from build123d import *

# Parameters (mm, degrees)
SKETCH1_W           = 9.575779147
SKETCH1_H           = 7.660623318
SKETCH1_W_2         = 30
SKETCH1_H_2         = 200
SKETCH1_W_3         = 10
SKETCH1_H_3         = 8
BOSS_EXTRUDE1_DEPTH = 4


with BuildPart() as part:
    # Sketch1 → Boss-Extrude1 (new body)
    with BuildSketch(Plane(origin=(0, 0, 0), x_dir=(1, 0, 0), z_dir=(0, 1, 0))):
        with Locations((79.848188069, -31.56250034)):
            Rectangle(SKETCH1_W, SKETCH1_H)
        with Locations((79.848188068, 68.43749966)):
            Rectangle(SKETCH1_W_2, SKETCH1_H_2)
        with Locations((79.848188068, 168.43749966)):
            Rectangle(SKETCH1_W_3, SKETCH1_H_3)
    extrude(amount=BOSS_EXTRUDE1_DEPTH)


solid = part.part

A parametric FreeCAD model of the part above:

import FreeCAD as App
import Part
import Sketcher


def add_polygon(sketch, points):
    """Adds a closed chain of lines whose ends are joined by coincident constraints."""
    first, n = sketch.GeometryCount, len(points)
    for a, b in zip(points, points[1:] + points[:1]):
        sketch.addGeometry(Part.LineSegment(App.Vector(*a, 0), App.Vector(*b, 0)), False)
    for i in range(n):
        sketch.addConstraint(Sketcher.Constraint("Coincident", first + i, 2, first + (i + 1) % n, 1))

doc = App.newDocument("Part")
body = doc.addObject("PartDesign::Body", "Body")

sketch1 = doc.addObject("Sketcher::SketchObject", "Sketch")
body.addObject(sketch1)
sketch1.AttachmentSupport = (doc.XZ_Plane, [""])
sketch1.MapMode = "FlatFace"
add_polygon(sketch1, [(75.1, 31.6), (75.1, 35.4), (84.6, 35.4), (84.6, 31.6), (94.8, 31.6), (94.8, -168.4), (84.8, -168.4), (84.8, -172.4), (74.8, -172.4), (74.8, -168.4), (64.8, -168.4), (64.8, 31.6)])
sketch1.addConstraint([
    Sketcher.Constraint("Vertical", 0),
    Sketcher.Constraint("Horizontal", 1),
    Sketcher.Constraint("Vertical", 2),
    Sketcher.Constraint("Horizontal", 3),
    Sketcher.Constraint("Vertical", 4),
    Sketcher.Constraint("Horizontal", 5),
    Sketcher.Constraint("Vertical", 6),
    Sketcher.Constraint("Horizontal", 7),
    Sketcher.Constraint("Vertical", 8),
    Sketcher.Constraint("Horizontal", 9),
    Sketcher.Constraint("Vertical", 10),
    Sketcher.Constraint("Horizontal", 11),
    Sketcher.Constraint("Horizontal", 5, 2, 8, 2),
    Sketcher.Constraint("Horizontal", 3, 2, 10, 2),
    Sketcher.Constraint("Equal", 5, 7),
    Sketcher.Constraint("Equal", 7, 9),
    Sketcher.Constraint("Equal", 3, 11),
    Sketcher.Constraint("DistanceX", 5, 2, 5, 1, 10.0),
    Sketcher.Constraint("DistanceY", 4, 2, 4, 1, 200.0),
    Sketcher.Constraint("DistanceY", 6, 2, 6, 1, 4.0),
    Sketcher.Constraint("DistanceX", 1, 1, 1, 2, 9.575779),
    Sketcher.Constraint("DistanceY", 0, 1, 0, 2, 3.830312),
    Sketcher.Constraint("DistanceX", -1, 1, 0, 2, 75.060298),
    Sketcher.Constraint("DistanceY", -1, 1, 2, 2, 31.5625),
])
pad1 = doc.addObject("PartDesign::Pad", "Pad")
body.addObject(pad1)
pad1.Profile = sketch1
pad1.Length = 4
pad1.Reversed = True

doc.recompute()
